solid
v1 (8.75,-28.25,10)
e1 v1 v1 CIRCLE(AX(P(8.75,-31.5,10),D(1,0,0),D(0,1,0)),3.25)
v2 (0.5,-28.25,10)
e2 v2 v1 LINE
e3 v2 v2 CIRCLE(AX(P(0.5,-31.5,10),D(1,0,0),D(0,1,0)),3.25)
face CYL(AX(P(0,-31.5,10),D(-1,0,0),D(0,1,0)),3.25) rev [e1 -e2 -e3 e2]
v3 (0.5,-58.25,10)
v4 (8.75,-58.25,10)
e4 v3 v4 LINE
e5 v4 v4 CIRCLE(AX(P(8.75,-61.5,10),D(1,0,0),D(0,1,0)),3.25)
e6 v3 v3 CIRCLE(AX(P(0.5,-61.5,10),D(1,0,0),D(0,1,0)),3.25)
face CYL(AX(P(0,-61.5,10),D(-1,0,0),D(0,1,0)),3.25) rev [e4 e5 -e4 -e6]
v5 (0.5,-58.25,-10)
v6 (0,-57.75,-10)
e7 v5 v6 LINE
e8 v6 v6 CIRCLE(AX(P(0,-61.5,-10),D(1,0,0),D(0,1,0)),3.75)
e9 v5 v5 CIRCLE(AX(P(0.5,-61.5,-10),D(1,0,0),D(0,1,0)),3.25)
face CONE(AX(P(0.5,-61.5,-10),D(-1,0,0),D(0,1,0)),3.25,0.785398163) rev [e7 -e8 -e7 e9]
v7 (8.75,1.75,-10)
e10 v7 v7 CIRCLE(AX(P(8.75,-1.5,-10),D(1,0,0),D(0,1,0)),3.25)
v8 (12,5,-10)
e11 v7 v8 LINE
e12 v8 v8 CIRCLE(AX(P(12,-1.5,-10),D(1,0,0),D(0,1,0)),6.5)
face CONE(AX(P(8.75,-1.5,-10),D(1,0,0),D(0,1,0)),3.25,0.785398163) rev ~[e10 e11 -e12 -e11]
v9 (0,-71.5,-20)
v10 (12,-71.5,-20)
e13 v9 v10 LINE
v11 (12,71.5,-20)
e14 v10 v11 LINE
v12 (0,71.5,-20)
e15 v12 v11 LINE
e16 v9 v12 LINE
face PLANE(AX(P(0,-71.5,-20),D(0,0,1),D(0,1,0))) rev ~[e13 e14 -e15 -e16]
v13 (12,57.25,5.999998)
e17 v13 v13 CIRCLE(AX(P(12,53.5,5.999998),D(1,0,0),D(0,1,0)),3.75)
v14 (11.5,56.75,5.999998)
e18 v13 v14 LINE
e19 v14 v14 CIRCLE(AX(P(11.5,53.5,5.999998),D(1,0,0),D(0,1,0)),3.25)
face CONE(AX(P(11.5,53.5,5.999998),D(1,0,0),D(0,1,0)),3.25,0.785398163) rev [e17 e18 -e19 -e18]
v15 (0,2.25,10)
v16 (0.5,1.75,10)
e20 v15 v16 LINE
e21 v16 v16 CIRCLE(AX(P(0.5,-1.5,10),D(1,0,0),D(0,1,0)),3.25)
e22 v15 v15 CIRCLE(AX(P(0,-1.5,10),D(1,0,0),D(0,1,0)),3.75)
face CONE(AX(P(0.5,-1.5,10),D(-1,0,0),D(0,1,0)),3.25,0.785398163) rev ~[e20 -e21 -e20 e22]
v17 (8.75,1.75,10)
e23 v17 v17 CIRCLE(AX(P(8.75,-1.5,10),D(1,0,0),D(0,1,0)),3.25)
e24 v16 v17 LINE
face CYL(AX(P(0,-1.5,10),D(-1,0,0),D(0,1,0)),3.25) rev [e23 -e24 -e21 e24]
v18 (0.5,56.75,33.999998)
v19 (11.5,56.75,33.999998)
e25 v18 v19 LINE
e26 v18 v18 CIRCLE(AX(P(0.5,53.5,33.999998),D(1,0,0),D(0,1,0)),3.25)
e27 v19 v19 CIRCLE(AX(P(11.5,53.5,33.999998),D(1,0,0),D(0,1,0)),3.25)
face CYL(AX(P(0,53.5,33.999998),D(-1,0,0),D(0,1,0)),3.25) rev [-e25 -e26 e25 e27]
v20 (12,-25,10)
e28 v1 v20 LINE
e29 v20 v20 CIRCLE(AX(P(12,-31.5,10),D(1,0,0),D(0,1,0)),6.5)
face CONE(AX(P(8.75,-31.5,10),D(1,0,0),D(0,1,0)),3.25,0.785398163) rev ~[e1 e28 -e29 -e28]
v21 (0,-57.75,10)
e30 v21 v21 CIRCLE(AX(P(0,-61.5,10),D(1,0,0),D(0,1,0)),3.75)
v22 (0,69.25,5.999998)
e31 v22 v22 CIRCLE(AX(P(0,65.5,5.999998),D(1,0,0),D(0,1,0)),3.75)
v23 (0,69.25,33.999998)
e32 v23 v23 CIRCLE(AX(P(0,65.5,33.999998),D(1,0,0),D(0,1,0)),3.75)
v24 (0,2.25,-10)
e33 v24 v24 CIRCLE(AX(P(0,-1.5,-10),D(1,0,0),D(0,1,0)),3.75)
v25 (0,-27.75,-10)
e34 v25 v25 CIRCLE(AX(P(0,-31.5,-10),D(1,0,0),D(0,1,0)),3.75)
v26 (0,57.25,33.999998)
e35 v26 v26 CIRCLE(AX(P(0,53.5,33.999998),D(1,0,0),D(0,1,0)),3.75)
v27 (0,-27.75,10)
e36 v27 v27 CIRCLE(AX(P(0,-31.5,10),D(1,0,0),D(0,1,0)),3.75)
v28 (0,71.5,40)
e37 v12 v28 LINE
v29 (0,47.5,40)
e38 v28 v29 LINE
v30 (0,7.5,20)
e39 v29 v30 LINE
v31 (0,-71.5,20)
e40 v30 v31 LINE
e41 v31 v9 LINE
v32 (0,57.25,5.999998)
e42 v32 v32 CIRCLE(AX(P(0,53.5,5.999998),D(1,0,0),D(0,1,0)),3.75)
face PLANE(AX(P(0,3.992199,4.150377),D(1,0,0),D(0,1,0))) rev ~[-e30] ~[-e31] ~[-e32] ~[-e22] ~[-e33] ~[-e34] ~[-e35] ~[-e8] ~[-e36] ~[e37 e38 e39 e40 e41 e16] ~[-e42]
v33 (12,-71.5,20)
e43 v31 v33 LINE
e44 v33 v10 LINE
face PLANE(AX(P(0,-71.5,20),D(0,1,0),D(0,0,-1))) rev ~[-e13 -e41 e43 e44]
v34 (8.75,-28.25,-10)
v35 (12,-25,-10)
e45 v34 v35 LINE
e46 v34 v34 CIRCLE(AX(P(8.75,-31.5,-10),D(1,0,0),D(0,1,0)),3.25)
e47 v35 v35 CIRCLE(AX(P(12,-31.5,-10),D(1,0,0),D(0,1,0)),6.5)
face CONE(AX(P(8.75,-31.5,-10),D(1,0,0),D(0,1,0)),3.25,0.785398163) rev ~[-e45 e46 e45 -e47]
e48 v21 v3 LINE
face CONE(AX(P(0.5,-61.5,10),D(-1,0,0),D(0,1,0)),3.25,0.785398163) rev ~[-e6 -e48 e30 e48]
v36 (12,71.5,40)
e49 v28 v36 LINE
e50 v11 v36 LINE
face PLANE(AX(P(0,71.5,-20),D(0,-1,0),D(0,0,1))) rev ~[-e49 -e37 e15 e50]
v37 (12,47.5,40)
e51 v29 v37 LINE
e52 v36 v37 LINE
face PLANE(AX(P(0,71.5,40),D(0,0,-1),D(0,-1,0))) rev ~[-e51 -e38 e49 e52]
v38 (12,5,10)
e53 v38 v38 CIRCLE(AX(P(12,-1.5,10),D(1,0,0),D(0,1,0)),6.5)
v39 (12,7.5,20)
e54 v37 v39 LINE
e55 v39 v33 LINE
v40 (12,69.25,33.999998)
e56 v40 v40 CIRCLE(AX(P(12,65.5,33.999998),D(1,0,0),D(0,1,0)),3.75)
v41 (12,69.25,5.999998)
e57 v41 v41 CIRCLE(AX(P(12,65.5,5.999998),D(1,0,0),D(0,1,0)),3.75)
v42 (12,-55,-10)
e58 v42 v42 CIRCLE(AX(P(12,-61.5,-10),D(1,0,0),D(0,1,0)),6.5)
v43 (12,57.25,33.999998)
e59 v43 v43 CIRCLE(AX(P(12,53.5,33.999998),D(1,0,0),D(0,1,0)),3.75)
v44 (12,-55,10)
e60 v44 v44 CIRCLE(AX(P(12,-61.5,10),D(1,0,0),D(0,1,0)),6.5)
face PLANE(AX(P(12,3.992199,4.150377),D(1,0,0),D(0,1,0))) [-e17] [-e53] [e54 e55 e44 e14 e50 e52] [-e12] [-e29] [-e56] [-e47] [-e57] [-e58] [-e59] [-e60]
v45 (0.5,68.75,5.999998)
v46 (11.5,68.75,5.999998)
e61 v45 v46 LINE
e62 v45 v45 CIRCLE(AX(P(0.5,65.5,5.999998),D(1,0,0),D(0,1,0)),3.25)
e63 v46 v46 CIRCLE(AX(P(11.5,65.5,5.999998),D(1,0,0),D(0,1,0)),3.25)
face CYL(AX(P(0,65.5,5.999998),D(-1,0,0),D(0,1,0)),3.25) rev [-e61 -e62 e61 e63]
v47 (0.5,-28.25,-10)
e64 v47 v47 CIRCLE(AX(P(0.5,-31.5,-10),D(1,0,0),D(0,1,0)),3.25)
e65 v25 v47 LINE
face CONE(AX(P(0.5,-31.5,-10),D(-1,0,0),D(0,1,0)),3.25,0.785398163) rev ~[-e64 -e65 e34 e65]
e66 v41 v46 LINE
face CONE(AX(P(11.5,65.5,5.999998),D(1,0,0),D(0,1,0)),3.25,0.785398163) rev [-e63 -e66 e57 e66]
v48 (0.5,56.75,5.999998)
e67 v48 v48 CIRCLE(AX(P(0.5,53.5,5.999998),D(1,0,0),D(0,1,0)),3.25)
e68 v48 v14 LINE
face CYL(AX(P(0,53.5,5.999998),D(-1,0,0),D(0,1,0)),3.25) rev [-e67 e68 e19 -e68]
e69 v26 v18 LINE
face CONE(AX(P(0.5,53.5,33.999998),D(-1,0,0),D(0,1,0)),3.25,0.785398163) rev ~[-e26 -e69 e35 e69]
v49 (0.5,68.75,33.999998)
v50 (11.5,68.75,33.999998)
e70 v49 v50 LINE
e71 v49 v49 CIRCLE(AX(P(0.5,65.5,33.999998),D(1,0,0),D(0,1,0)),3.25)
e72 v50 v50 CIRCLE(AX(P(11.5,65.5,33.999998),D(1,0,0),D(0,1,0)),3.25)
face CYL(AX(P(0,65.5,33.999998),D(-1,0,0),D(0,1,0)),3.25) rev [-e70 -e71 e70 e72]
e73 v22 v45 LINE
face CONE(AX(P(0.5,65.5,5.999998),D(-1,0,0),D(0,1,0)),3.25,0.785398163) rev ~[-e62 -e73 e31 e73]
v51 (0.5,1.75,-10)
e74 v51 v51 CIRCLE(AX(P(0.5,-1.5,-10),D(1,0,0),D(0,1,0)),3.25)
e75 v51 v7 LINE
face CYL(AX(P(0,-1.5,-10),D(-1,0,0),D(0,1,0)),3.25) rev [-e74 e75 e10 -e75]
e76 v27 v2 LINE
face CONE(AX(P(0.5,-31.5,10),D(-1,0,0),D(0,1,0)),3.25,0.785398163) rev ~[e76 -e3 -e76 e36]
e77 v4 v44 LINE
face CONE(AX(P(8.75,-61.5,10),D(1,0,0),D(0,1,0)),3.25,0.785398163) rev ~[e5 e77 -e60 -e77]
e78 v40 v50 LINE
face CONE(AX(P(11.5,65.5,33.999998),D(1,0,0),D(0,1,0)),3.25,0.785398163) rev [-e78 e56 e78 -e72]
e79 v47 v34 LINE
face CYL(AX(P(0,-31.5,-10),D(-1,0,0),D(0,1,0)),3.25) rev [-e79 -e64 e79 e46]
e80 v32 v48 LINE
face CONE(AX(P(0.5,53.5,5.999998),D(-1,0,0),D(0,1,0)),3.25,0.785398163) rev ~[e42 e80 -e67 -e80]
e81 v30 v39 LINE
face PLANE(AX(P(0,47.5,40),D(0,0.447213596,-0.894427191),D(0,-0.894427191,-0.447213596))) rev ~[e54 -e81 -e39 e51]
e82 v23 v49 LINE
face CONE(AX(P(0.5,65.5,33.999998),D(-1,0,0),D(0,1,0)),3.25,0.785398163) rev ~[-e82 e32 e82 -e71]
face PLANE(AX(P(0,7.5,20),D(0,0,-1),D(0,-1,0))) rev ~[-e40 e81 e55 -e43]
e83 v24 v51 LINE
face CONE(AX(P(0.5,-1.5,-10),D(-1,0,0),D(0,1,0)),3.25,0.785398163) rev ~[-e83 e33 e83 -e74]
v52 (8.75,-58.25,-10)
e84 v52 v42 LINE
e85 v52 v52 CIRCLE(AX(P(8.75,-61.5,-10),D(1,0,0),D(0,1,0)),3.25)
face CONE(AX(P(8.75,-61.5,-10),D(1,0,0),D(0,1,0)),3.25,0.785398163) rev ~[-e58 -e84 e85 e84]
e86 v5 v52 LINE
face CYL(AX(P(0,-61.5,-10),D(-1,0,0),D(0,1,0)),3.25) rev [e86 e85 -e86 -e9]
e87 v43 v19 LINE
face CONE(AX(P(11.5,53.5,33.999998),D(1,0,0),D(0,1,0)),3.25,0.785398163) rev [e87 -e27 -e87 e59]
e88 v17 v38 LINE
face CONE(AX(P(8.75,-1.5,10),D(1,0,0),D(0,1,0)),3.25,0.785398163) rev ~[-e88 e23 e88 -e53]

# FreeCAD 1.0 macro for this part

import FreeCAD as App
import Part
import Sketcher

V = App.Vector


def edges_at(feature, points):
    """Names of the edges that pass closest to the given points."""
    edges = feature.Shape.Edges
    near = lambda p: min(range(len(edges)), key=lambda i: edges[i].distToShape(Part.Vertex(*p))[0])
    return sorted({f"Edge{near(p) + 1}" for p in points})

doc = App.newDocument("Part")
body = doc.addObject("PartDesign::Body", "Body")

sketch1 = body.newObject("Sketcher::SketchObject", "Sketch")
sketch1.AttachmentSupport = (doc.getObject("YZ_Plane"), [""])
sketch1.MapMode = "FlatFace"
sketch1.addGeometry([
    Part.LineSegment(V(7.5, 20, 0), V(-71.5, 20, 0)),
    Part.LineSegment(V(-71.5, 20, 0), V(-71.5, -20, 0)),
    Part.LineSegment(V(-71.5, -20, 0), V(71.5, -20, 0)),
    Part.LineSegment(V(71.5, -20, 0), V(71.5, 40, 0)),
    Part.LineSegment(V(71.5, 40, 0), V(47.5, 40, 0)),
    Part.LineSegment(V(47.5, 40, 0), V(7.5, 20, 0)),
    Part.Circle(V(-61.5, -10, 0), V(0, 0, 1), 3.2),
    Part.Circle(V(-31.5, -10, 0), V(0, 0, 1), 3.2),
    Part.Circle(V(-1.5, -10, 0), V(0, 0, 1), 3.2),
    Part.Circle(V(-61.5, 10, 0), V(0, 0, 1), 3.2),
    Part.Circle(V(-31.5, 10, 0), V(0, 0, 1), 3.2),
    Part.Circle(V(-1.5, 10, 0), V(0, 0, 1), 3.2),
    Part.Circle(V(53.5, 6, 0), V(0, 0, 1), 3.2),
    Part.Circle(V(65.5, 6, 0), V(0, 0, 1), 3.2),
    Part.Circle(V(53.5, 34, 0), V(0, 0, 1), 3.2),
    Part.Circle(V(65.5, 34, 0), V(0, 0, 1), 3.2),
], False)
sketch1.addConstraint([
    Sketcher.Constraint("Coincident", 0, 2, 1, 1),
    Sketcher.Constraint("Coincident", 1, 2, 2, 1),
    Sketcher.Constraint("Coincident", 2, 2, 3, 1),
    Sketcher.Constraint("Coincident", 3, 2, 4, 1),
    Sketcher.Constraint("Coincident", 4, 2, 5, 1),
    Sketcher.Constraint("Coincident", 5, 2, 0, 1),
    Sketcher.Constraint("Horizontal", 0),
    Sketcher.Constraint("Vertical", 1),
    Sketcher.Constraint("Horizontal", 2),
    Sketcher.Constraint("Vertical", 3),
    Sketcher.Constraint("Horizontal", 4),
    Sketcher.Constraint("Equal", 6, 7),
    Sketcher.Constraint("Equal", 7, 8),
    Sketcher.Constraint("Equal", 8, 9),
    Sketcher.Constraint("Equal", 9, 10),
    Sketcher.Constraint("Equal", 10, 11),
    Sketcher.Constraint("Equal", 11, 12),
    Sketcher.Constraint("Equal", 12, 13),
    Sketcher.Constraint("Equal", 13, 14),
    Sketcher.Constraint("Equal", 14, 15),
    Sketcher.Constraint("Symmetric", 0, 2, 2, 2, -1, 1),
    Sketcher.Constraint("Symmetric", 6, 3, 9, 3, -1),
    Sketcher.Constraint("Symmetric", 7, 3, 10, 3, -1),
    Sketcher.Constraint("Symmetric", 8, 3, 11, 3, -1),
    Sketcher.Constraint("Horizontal", 6, 3, 7, 3),
    Sketcher.Constraint("Horizontal", 7, 3, 8, 3),
    Sketcher.Constraint("Horizontal", 12, 3, 13, 3),
    Sketcher.Constraint("Horizontal", 14, 3, 15, 3),
    Sketcher.Constraint("Vertical", 12, 3, 14, 3),
    Sketcher.Constraint("Vertical", 13, 3, 15, 3),
    Sketcher.Constraint("Diameter", 6, 6.5),
    Sketcher.Constraint("DistanceX", 0, 2, 0, 1, 79.0),
    Sketcher.Constraint("DistanceX", 2, 1, 2, 2, 143.0),
    Sketcher.Constraint("DistanceX", 4, 2, 4, 1, 24.0),
    Sketcher.Constraint("DistanceY", 1, 2, 1, 1, 40.0),
    Sketcher.Constraint("DistanceY", 3, 1, 3, 2, 60.0),
    Sketcher.Constraint("DistanceY", 6, 3, -1, 1, 10.0),
    Sketcher.Constraint("DistanceX", 6, 3, 7, 3, 30.0),
    Sketcher.Constraint("DistanceX", 7, 3, 8, 3, 30.0),
    Sketcher.Constraint("DistanceX", 11, 3, 12, 3, 55.0),
    Sketcher.Constraint("DistanceX", 12, 3, 13, 3, 12.0),
    Sketcher.Constraint("DistanceY", 12, 3, 14, 3, 28.0),
    Sketcher.Constraint("DistanceX", 0, 2, 9, 3, 10.0),
    Sketcher.Constraint("DistanceY", -1, 1, 12, 3, 5.999998),
])
pad1 = body.newObject("PartDesign::Pad", "Pad")
pad1.Profile = sketch1
pad1.Length = 12
doc.recompute()

chamfer = body.newObject("PartDesign::Chamfer", "Chamfer")
chamfer.Base = (pad1, edges_at(pad1, [
    (12, -64.75, 10),
    (12, -34.75, 10),
    (12, -4.75, 10),
    (12, -4.75, -10),
    (12, -34.75, -10),
    (12, -64.75, -10),
]))
chamfer.Size = 3.25
doc.recompute()

chamfer2 = body.newObject("PartDesign::Chamfer", "Chamfer001")
chamfer2.Base = (chamfer, edges_at(chamfer, [
    (0, -4.75, -10),
    (0, -4.75, 10),
    (0, -34.75, 10),
    (0, -34.75, -10),
    (0, -64.75, -10),
    (0, -64.75, 10),
    (6, 68.75, 34),
    (0, 62.25, 34),
    (12, 62.25, 34),
    (6, 56.75, 34),
    (0, 50.25, 34),
    (12, 50.25, 34),
    (6, 56.75, 6),
    (0, 50.25, 6),
    (12, 50.25, 6),
    (6, 68.75, 6),
    (0, 62.25, 6),
    (12, 62.25, 6),
]))
chamfer2.Size = 0.5

doc.recompute()
